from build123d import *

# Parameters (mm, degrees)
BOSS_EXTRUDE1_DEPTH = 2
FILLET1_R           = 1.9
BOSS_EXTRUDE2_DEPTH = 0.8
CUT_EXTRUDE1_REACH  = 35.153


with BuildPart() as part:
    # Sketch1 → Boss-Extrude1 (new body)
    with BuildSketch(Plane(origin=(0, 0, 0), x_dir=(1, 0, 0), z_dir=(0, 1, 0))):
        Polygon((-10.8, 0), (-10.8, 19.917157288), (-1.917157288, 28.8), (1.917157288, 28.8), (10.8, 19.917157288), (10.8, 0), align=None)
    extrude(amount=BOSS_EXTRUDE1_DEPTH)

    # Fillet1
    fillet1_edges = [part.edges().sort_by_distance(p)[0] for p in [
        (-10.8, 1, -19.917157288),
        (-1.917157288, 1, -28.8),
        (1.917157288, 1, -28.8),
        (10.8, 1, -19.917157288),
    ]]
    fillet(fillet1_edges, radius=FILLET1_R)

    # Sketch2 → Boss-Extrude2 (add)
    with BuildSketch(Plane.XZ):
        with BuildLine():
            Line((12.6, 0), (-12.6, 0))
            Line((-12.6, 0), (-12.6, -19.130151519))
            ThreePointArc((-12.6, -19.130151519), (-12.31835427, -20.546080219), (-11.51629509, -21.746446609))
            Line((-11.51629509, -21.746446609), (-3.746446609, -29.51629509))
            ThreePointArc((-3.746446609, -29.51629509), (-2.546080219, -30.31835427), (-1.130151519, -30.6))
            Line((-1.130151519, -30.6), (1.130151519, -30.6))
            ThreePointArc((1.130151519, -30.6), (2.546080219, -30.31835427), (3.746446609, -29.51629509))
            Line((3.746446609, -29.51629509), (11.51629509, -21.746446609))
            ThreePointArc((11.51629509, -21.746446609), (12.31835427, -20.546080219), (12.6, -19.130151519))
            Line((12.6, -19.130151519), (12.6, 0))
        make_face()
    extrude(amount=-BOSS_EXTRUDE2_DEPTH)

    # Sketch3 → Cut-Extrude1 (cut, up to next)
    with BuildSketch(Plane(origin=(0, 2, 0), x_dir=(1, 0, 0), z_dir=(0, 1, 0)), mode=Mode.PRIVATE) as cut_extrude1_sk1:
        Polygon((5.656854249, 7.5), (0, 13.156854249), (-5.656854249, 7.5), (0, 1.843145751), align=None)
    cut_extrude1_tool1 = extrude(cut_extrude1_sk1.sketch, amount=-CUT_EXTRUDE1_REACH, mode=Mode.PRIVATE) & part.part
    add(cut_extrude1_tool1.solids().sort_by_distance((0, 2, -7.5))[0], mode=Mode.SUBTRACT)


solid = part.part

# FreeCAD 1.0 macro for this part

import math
import FreeCAD as App
import Part
import Sketcher


def edges_at(feature, points):
    """Names of the edges that pass closest to the given points."""
    edges = feature.Shape.Edges
    near = lambda p: min(range(len(edges)), key=lambda i: edges[i].distToShape(Part.Vertex(*p))[0])
    return sorted({f"Edge{near(p) + 1}" for p in points})

doc = App.newDocument("Part")
body = doc.addObject("PartDesign::Body", "Body")

sketch1 = body.newObject("Sketcher::SketchObject", "Sketch")
sketch1.AttachmentSupport = (doc.getObject("XZ_Plane"), [""])
sketch1.MapMode = "FlatFace"
sketch1.addGeometry([
    Part.LineSegment(App.Vector(-10.8, -19.9, 0), App.Vector(-10.8, 0, 0)),
    Part.LineSegment(App.Vector(-10.8, 0, 0), App.Vector(10.8, 0, 0)),
    Part.LineSegment(App.Vector(10.8, 0, 0), App.Vector(10.8, -19.9, 0)),
    Part.LineSegment(App.Vector(10.8, -19.9, 0), App.Vector(1.9, -28.8, 0)),
    Part.LineSegment(App.Vector(1.9, -28.8, 0), App.Vector(-1.9, -28.8, 0)),
    Part.LineSegment(App.Vector(-1.9, -28.8, 0), App.Vector(-10.8, -19.9, 0)),
], False)
sketch1.addConstraint([
    Sketcher.Constraint("Coincident", 0, 2, 1, 1),
    Sketcher.Constraint("Coincident", 1, 2, 2, 1),
    Sketcher.Constraint("Coincident", 2, 2, 3, 1),
    Sketcher.Constraint("Coincident", 3, 2, 4, 1),
    Sketcher.Constraint("Coincident", 4, 2, 5, 1),
    Sketcher.Constraint("Coincident", 5, 2, 0, 1),
    Sketcher.Constraint("Vertical", 0),
    Sketcher.Constraint("Horizontal", 1),
    Sketcher.Constraint("Vertical", 2),
    Sketcher.Constraint("Horizontal", 4),
    Sketcher.Constraint("Symmetric", 0, 2, 1, 2, -1, 1),
    Sketcher.Constraint("Perpendicular", 3, 5),
    Sketcher.Constraint("Horizontal", 2, 2, 5, 2),
    Sketcher.Constraint("Equal", 3, 5),
    Sketcher.Constraint("DistanceX", 1, 1, 1, 2, 21.6),
    Sketcher.Constraint("DistanceY", 3, 2, -1, 1, 28.8),
    Sketcher.Constraint("DistanceX", 4, 2, 4, 1, 3.834315),
])
pad1 = body.newObject("PartDesign::Pad", "Pad")
pad1.Profile = sketch1
pad1.Length = 2
pad1.Reversed = True
doc.recompute()

fillet = body.newObject("PartDesign::Fillet", "Fillet")
fillet.Base = (pad1, edges_at(pad1, [
    (-10.8, 1, -19.917),
    (-1.917, 1, -28.8),
    (1.917, 1, -28.8),
    (10.8, 1, -19.917),
]))
fillet.Radius = 1.9

sketch2 = body.newObject("Sketcher::SketchObject", "Sketch001")
sketch2.AttachmentSupport = (doc.getObject("XZ_Plane"), [""])
sketch2.MapMode = "FlatFace"
sketch2.addGeometry([
    Part.LineSegment(App.Vector(12.6, 0, 0), App.Vector(-12.6, 0, 0)),
    Part.LineSegment(App.Vector(-12.6, 0, 0), App.Vector(-12.6, -19.1, 0)),
    Part.ArcOfCircle(Part.Circle(App.Vector(-8.9, -19.1, 0), App.Vector(0, 0, 1), 3.7), math.radians(180), math.radians(225)),
    Part.LineSegment(App.Vector(-11.5, -21.7, 0), App.Vector(-3.7, -29.5, 0)),
    Part.ArcOfCircle(Part.Circle(App.Vector(-1.1, -26.9, 0), App.Vector(0, 0, 1), 3.7), math.radians(-135), math.radians(-90)),
    Part.LineSegment(App.Vector(-1.1, -30.6, 0), App.Vector(1.1, -30.6, 0)),
    Part.ArcOfCircle(Part.Circle(App.Vector(1.1, -26.9, 0), App.Vector(0, 0, 1), 3.7), math.radians(-90), math.radians(-45)),
    Part.LineSegment(App.Vector(3.7, -29.5, 0), App.Vector(11.5, -21.7, 0)),
    Part.ArcOfCircle(Part.Circle(App.Vector(8.9, -19.1, 0), App.Vector(0, 0, 1), 3.7), math.radians(-45), math.radians(0)),
    Part.LineSegment(App.Vector(12.6, -19.1, 0), App.Vector(12.6, 0, 0)),
], False)
sketch2.addConstraint([
    Sketcher.Constraint("Coincident", 0, 2, 1, 1),
    Sketcher.Constraint("Tangent", 1, 2, 2, 1),
    Sketcher.Constraint("Tangent", 2, 2, 3, 1),
    Sketcher.Constraint("Tangent", 3, 2, 4, 1),
    Sketcher.Constraint("Tangent", 4, 2, 5, 1),
    Sketcher.Constraint("Tangent", 5, 2, 6, 1),
    Sketcher.Constraint("Tangent", 6, 2, 7, 1),
    Sketcher.Constraint("Tangent", 7, 2, 8, 1),
    Sketcher.Constraint("Tangent", 8, 2, 9, 1),
    Sketcher.Constraint("Coincident", 9, 2, 0, 1),
    Sketcher.Constraint("Horizontal", 0),
    Sketcher.Constraint("Vertical", 1),
    Sketcher.Constraint("Horizontal", 5),
    Sketcher.Constraint("Vertical", 9),
    Sketcher.Constraint("Equal", 2, 4),
    Sketcher.Constraint("Equal", 4, 6),
    Sketcher.Constraint("Equal", 6, 8),
    Sketcher.Constraint("Symmetric", 0, 2, 9, 2, -1, 1),
    Sketcher.Constraint("Symmetric", 3, 2, 6, 2, -2),
    Sketcher.Constraint("Perpendicular", 3, 7),
    Sketcher.Constraint("Radius", 2, 3.7),
    Sketcher.Constraint("DistanceX", 0, 2, 0, 1, 25.2),
    Sketcher.Constraint("DistanceY", 4, 3, -1, 1, 26.9),
    Sketcher.Constraint("DistanceY", 1, 2, 1, 1, 19.130152),
])
pad2 = body.newObject("PartDesign::Pad", "Pad001")
pad2.Profile = sketch2
pad2.Length = 0.8
pad2.Reversed = True

sketch3 = body.newObject("Sketcher::SketchObject", "Sketch002")
sketch3.AttachmentSupport = (doc.getObject("XZ_Plane"), [""])
sketch3.MapMode = "FlatFace"
sketch3.AttachmentOffset = App.Placement(App.Vector(0, 0, -2), App.Rotation())
sketch3.addGeometry([
    Part.LineSegment(App.Vector(6, -8, 0), App.Vector(0, -13, 0)),
    Part.LineSegment(App.Vector(0, -13, 0), App.Vector(-6, -8, 0)),
    Part.LineSegment(App.Vector(-6, -8, 0), App.Vector(0, -2, 0)),
    Part.LineSegment(App.Vector(0, -2, 0), App.Vector(6, -8, 0)),
], False)
sketch3.addConstraint([
    Sketcher.Constraint("Coincident", 0, 2, 1, 1),
    Sketcher.Constraint("Coincident", 1, 2, 2, 1),
    Sketcher.Constraint("Coincident", 2, 2, 3, 1),
    Sketcher.Constraint("Coincident", 3, 2, 0, 1),
    Sketcher.Constraint("Symmetric", 1, 2, 3, 2, -2),
    Sketcher.Constraint("PointOnObject", 0, 2, -2),
    Sketcher.Constraint("PointOnObject", 2, 2, -2),
    Sketcher.Constraint("Perpendicular", 0, 1),
    Sketcher.Constraint("Perpendicular", 1, 2),
    Sketcher.Constraint("Distance", 0, 8.0),
    Sketcher.Constraint("DistanceY", 1, 2, -1, 1, 7.5),
])
pocket1 = body.newObject("PartDesign::Pocket", "Pocket")
pocket1.Profile = sketch3
pocket1.Type = "UpToFirst"
pocket1.Reversed = True

doc.recompute()
